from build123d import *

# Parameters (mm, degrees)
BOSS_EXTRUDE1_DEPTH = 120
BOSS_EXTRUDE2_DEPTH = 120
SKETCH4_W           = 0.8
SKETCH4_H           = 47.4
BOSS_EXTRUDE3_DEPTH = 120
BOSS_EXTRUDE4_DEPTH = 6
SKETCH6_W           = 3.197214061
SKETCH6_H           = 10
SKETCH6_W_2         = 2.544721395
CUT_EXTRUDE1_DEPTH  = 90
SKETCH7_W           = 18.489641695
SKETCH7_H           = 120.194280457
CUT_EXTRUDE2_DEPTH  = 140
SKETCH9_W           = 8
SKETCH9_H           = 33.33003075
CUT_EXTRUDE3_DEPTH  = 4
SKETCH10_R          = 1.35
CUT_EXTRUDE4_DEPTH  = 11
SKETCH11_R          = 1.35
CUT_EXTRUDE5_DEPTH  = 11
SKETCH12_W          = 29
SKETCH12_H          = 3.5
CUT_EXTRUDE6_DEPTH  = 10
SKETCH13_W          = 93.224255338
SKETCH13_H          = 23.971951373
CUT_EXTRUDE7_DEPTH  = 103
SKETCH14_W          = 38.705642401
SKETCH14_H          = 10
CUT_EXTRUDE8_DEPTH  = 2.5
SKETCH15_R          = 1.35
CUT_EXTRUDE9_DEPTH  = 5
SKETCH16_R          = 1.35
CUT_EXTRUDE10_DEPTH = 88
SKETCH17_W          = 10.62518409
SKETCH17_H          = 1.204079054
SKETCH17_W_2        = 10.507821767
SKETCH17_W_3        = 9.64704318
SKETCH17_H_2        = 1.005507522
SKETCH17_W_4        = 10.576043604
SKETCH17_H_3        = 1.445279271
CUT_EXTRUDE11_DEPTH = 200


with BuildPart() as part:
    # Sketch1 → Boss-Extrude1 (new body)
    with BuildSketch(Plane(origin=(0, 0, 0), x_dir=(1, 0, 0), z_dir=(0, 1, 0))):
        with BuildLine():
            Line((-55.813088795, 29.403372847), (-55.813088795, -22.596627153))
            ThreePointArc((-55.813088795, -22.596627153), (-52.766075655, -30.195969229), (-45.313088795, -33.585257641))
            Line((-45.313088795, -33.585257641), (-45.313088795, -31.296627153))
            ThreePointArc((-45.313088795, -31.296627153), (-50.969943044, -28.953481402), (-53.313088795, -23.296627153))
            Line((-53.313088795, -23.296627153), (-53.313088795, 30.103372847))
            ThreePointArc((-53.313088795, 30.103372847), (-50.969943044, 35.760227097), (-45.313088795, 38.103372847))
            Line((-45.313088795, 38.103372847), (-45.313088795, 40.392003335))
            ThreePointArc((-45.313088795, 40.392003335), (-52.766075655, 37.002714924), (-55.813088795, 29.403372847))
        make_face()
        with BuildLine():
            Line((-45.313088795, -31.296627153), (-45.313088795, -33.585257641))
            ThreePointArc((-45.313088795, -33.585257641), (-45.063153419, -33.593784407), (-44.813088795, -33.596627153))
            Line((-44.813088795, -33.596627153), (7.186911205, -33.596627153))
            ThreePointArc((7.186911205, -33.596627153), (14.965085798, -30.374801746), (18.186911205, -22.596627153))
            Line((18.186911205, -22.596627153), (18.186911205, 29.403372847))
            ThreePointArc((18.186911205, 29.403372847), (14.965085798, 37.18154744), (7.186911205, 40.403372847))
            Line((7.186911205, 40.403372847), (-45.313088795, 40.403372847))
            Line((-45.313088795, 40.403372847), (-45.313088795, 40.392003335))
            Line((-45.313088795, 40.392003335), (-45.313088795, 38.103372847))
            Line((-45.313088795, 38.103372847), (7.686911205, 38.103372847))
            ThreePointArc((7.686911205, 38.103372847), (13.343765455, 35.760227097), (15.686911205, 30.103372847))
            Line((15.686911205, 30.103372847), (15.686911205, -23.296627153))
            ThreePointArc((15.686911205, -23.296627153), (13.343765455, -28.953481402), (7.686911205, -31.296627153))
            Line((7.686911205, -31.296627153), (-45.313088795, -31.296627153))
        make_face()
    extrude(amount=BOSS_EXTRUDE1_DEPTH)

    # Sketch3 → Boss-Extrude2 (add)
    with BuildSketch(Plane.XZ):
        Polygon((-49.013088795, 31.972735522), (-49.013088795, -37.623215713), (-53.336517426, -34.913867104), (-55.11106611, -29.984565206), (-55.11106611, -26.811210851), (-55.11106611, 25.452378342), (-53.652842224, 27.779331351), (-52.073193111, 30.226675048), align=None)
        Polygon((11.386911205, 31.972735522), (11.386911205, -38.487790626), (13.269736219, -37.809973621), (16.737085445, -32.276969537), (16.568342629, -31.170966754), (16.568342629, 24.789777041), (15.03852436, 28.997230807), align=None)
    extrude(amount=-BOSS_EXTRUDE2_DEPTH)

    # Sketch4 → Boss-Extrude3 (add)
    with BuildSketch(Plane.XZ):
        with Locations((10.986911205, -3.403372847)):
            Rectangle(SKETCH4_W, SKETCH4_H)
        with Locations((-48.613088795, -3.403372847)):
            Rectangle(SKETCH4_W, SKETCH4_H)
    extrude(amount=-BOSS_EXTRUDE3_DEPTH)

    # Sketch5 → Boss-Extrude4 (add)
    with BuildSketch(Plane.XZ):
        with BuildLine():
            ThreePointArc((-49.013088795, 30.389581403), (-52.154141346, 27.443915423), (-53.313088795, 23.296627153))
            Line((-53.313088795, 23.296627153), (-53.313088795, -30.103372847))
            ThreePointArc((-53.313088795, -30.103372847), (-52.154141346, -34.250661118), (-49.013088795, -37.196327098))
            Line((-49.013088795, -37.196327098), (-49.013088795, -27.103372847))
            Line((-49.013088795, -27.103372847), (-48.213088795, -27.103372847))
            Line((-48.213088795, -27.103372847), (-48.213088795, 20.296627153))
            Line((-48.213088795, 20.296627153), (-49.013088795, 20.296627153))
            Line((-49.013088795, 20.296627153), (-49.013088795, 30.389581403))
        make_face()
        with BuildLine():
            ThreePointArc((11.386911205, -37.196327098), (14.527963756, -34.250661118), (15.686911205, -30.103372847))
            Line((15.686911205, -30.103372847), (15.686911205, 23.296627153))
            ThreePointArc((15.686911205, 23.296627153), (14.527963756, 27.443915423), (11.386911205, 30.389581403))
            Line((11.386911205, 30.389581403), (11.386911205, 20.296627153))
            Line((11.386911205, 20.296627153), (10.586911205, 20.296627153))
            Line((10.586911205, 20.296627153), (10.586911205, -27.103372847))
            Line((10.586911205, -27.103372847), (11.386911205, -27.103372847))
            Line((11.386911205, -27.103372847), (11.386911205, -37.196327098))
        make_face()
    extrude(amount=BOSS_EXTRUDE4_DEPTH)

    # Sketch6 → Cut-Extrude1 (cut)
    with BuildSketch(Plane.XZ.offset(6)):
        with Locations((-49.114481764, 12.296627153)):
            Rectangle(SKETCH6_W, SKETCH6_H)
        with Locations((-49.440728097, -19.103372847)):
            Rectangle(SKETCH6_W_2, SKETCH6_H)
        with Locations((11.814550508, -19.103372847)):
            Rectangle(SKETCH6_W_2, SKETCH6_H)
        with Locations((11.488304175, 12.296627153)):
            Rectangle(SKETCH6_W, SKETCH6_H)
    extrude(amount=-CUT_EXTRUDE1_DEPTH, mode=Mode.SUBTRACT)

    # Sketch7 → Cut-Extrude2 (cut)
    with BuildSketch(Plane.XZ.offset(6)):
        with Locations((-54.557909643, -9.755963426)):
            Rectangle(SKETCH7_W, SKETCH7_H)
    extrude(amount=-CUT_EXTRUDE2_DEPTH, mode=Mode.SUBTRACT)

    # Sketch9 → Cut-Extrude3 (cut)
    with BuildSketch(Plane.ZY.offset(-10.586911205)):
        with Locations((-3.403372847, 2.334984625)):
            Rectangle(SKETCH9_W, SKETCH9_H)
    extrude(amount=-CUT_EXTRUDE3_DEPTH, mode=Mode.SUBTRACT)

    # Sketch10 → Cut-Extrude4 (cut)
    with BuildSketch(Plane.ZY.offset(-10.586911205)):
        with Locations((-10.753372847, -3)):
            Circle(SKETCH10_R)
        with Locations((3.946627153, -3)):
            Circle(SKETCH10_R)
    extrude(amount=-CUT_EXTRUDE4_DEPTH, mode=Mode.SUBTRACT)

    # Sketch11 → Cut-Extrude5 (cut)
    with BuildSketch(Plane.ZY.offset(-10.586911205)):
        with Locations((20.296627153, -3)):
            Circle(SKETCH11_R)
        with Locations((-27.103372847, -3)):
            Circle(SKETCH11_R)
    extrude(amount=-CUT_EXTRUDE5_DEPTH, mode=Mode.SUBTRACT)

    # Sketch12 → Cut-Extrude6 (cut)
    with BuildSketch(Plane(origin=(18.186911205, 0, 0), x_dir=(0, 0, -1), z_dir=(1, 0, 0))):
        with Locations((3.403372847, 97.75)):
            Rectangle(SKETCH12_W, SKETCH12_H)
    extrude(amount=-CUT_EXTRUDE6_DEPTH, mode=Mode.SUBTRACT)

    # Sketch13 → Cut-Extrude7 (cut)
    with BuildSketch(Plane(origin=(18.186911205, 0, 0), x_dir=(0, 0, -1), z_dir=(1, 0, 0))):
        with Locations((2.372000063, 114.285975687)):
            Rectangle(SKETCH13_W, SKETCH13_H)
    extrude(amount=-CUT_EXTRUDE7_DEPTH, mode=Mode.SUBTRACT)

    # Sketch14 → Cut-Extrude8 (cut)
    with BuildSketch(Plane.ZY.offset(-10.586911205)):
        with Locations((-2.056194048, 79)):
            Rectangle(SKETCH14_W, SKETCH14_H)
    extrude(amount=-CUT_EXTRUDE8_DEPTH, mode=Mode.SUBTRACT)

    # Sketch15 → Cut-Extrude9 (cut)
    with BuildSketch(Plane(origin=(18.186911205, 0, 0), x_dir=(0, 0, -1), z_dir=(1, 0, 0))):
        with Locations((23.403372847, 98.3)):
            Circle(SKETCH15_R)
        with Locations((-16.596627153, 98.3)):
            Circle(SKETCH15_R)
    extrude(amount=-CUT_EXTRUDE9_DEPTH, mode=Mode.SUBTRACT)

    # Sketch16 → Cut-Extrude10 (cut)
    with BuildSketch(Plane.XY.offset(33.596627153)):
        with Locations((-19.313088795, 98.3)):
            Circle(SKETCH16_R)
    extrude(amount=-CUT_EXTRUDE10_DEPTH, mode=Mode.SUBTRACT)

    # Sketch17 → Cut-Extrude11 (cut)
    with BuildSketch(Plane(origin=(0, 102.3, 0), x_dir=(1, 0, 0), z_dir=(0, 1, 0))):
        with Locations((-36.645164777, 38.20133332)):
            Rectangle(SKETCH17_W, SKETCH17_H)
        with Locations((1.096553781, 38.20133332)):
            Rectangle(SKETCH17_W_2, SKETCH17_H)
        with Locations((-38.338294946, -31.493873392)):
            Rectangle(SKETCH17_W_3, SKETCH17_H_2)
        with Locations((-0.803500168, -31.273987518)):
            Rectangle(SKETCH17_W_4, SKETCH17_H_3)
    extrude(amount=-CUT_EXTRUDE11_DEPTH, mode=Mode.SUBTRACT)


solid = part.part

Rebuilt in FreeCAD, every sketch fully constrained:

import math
import FreeCAD as App
import Part
import Sketcher

V = App.Vector


def add_polygon(sketch, points):
    """Adds a closed chain of lines whose ends are joined by coincident constraints."""
    first, n = sketch.GeometryCount, len(points)
    for a, b in zip(points, points[1:] + points[:1]):
        sketch.addGeometry(Part.LineSegment(App.Vector(*a, 0), App.Vector(*b, 0)), False)
    for i in range(n):
        sketch.addConstraint(Sketcher.Constraint("Coincident", first + i, 2, first + (i + 1) % n, 1))

doc = App.newDocument("Part")
body = doc.addObject("PartDesign::Body", "Body")

# Sketch on XZ plane
sketch1 = doc.addObject("Sketcher::SketchObject", "Sketch")
body.addObject(sketch1)
sketch1.AttachmentSupport = (doc.XZ_Plane, [""])
sketch1.MapMode = "FlatFace"
sketch1.addGeometry([
    Part.LineSegment(V(-55.813089, -29.403373, 0), V(-55.813089, 22.596627, 0)),  # 0
    Part.ArcOfCircle(Part.Circle(V(-44.813089, 22.596627, 0), V(0, 0, 1), 11), math.radians(92.605251), math.radians(180)),  # 1
    Part.ArcOfCircle(Part.Circle(V(-44.813089, 22.596624, 0), V(0, 0, 1), 11.000003), math.radians(90), math.radians(92.605251)),  # 2
    Part.LineSegment(V(-44.813089, 33.596627, 0), V(7.186911, 33.596627, 0)),  # 3
    Part.ArcOfCircle(Part.Circle(V(7.186911, 22.596627, 0), V(0, 0, 1), 11), math.radians(0), math.radians(90)),  # 4
    Part.LineSegment(V(18.186911, 22.596627, 0), V(18.186911, -29.403373, 0)),  # 5
    Part.ArcOfCircle(Part.Circle(V(7.186911, -29.403373, 0), V(0, 0, 1), 11), math.radians(-90), math.radians(0)),  # 6
    Part.LineSegment(V(7.186911, -40.403373, 0), V(-45.313089, -40.403373, 0)),  # 7
    Part.LineSegment(V(-45.313089, -40.403373, 0), V(-45.313089, -40.392003, 0)),  # 8
    Part.ArcOfCircle(Part.Circle(V(-44.813089, -29.403373, 0), V(0, 0, 1), 11), math.radians(180), math.radians(267.394749)),  # 9
    Part.ArcOfCircle(Part.Circle(V(-45.313089, 23.296627, 0), V(0, 0, 1), 8), math.radians(90), math.radians(180)),  # 10
    Part.LineSegment(V(-53.313089, 23.296627, 0), V(-53.313089, -30.103373, 0)),  # 11
    Part.ArcOfCircle(Part.Circle(V(-45.313089, -30.103373, 0), V(0, 0, 1), 8), math.radians(180), math.radians(270)),  # 12
    Part.LineSegment(V(-45.313089, -38.103373, 0), V(7.686911, -38.103373, 0)),  # 13
    Part.ArcOfCircle(Part.Circle(V(7.686911, -30.103373, 0), V(0, 0, 1), 8), math.radians(-90), math.radians(0)),  # 14
    Part.LineSegment(V(15.686911, -30.103373, 0), V(15.686911, 23.296627, 0)),  # 15
    Part.ArcOfCircle(Part.Circle(V(7.686911, 23.296627, 0), V(0, 0, 1), 8), math.radians(0), math.radians(90)),  # 16
    Part.LineSegment(V(7.686911, 31.296627, 0), V(-45.313089, 31.296627, 0)),  # 17
], False)
sketch1.addConstraint([
    Sketcher.Constraint("Tangent", 0, 2, 1, 2),
    Sketcher.Constraint("Tangent", 1, 1, 2, 2),
    Sketcher.Constraint("Tangent", 2, 1, 3, 1),
    Sketcher.Constraint("Tangent", 3, 2, 4, 2),
    Sketcher.Constraint("Tangent", 4, 1, 5, 1),
    Sketcher.Constraint("Tangent", 5, 2, 6, 2),
    Sketcher.Constraint("Tangent", 6, 1, 7, 1),
    Sketcher.Constraint("Coincident", 7, 2, 8, 1),
    Sketcher.Constraint("Coincident", 8, 2, 9, 2),
    Sketcher.Constraint("Tangent", 9, 1, 0, 1),
    Sketcher.Constraint("Tangent", 10, 2, 11, 1),
    Sketcher.Constraint("Tangent", 11, 2, 12, 1),
    Sketcher.Constraint("Tangent", 12, 2, 13, 1),
    Sketcher.Constraint("Tangent", 13, 2, 14, 1),
    Sketcher.Constraint("Tangent", 14, 2, 15, 1),
    Sketcher.Constraint("Tangent", 15, 2, 16, 1),
    Sketcher.Constraint("Tangent", 16, 2, 17, 1),
    Sketcher.Constraint("Tangent", 17, 2, 10, 1),
    Sketcher.Constraint("Vertical", 0),
    Sketcher.Constraint("Horizontal", 3),
    Sketcher.Constraint("Vertical", 5),
    Sketcher.Constraint("Horizontal", 7),
    Sketcher.Constraint("Vertical", 8),
    Sketcher.Constraint("Vertical", 11),
    Sketcher.Constraint("Horizontal", 13),
    Sketcher.Constraint("Vertical", 15),
    Sketcher.Constraint("Horizontal", 17),
    Sketcher.Constraint("Equal", 1, 4),
    Sketcher.Constraint("Equal", 4, 6),
    Sketcher.Constraint("Equal", 6, 9),
    Sketcher.Constraint("Equal", 10, 12),
    Sketcher.Constraint("Equal", 12, 14),
    Sketcher.Constraint("Equal", 14, 16),
    Sketcher.Constraint("Horizontal", 6, 3, 9, 3),
    Sketcher.Constraint("Vertical", 2, 3, 9, 3),
    Sketcher.Constraint("Vertical", 12, 3, 1, 1),
    Sketcher.Constraint("Vertical", 1, 1, 7, 2),
    Sketcher.Constraint("Equal", 3, 0),
    Sketcher.Constraint("Radius", 1, 11.0),
    Sketcher.Constraint("Radius", 10, 8.0),
    Sketcher.Constraint("DistanceX", 3, 1, 3, 2, 52.0),
    Sketcher.Constraint("DistanceX", 13, 1, 13, 2, 53.0),
    Sketcher.Constraint("DistanceX", 7, 2, 7, 1, 52.5),
    Sketcher.Constraint("DistanceY", 11, 2, 11, 1, 53.4),
    Sketcher.Constraint("DistanceY", 1, 3, 10, 3, 0.7),
    Sketcher.Constraint("DistanceX", 1, 3, -1, 1, 44.813089),
    Sketcher.Constraint("DistanceY", -1, 1, 1, 3, 22.596627),
])
pad1 = doc.addObject("PartDesign::Pad", "Pad")
body.addObject(pad1)
pad1.Profile = sketch1
pad1.Length = 120
pad1.Reversed = True

# Sketch on XZ plane
sketch2 = doc.addObject("Sketcher::SketchObject", "Sketch001")
body.addObject(sketch2)
sketch2.AttachmentSupport = (doc.XZ_Plane, [""])
sketch2.MapMode = "FlatFace"
add_polygon(sketch2, [(-49.013089, -37.623216), (-49.013089, 31.972736), (-52.073193, 30.226675), (-53.652842, 27.779331), (-55.111066, 25.452378), (-55.111066, -29.984565), (-53.336517, -34.913867)])  # lines 0-6
add_polygon(sketch2, [(11.386911, 31.972736), (11.386911, -38.487791), (13.269736, -37.809974), (16.737085, -32.27697), (16.568343, -31.170967), (16.568343, 24.789777), (15.038524, 28.997231)])  # lines 7-13
sketch2.addConstraint([
    Sketcher.Constraint("Vertical", 0),
    Sketcher.Constraint("Vertical", 4),
    Sketcher.Constraint("Vertical", 7),
    Sketcher.Constraint("Vertical", 11),
    Sketcher.Constraint("Perpendicular", 3, 6),
    Sketcher.Constraint("Perpendicular", 5, 8),
    Sketcher.Constraint("Perpendicular", 6, 9),
    Sketcher.Constraint("Horizontal", 0, 2, 13, 2),
    Sketcher.Constraint("DistanceX", 6, 2, 7, 2, 60.4),
    Sketcher.Constraint("Distance", 10, 1.118801),
    Sketcher.Constraint("DistanceY", 0, 1, 0, 2, 69.595951),
    Sketcher.Constraint("DistanceY", 4, 2, 0, 2, 61.957301),
    Sketcher.Constraint("DistanceY", 5, 2, 4, 2, 4.929302),
    Sketcher.Constraint("DistanceY", 5, 2, 2, 2, 62.693198),
    Sketcher.Constraint("DistanceY", 5, 2, 10, 2, 3.7429),
    Sketcher.Constraint("DistanceY", 9, 2, 12, 2, 61.2742),
    Sketcher.Constraint("Distance", 3, 2.746111),
    Sketcher.Constraint("DistanceY", 4, 2, 4, 1, 55.436944),
    Sketcher.Constraint("DistanceY", 7, 2, 7, 1, 70.460526),
    Sketcher.Constraint("DistanceY", 11, 1, 11, 2, 55.960744),
    Sketcher.Constraint("DistanceX", 0, 2, -1, 1, 49.013089),
    Sketcher.Constraint("DistanceY", -1, 1, 2, 2, 27.779331),
    Sketcher.Constraint("DistanceY", 9, 2, -1, 1, 32.27697),
    Sketcher.Constraint("DistanceY", 1, 2, 0, 2, 1.74606),
    Sketcher.Constraint("DistanceX", 2, 2, 1, 2, 1.579649),
    Sketcher.Constraint("DistanceX", 4, 2, 5, 2, 1.774549),
    Sketcher.Constraint("DistanceY", 8, 2, 4, 2, 7.825408),
    Sketcher.Constraint("DistanceX", 12, 2, 11, 2, 1.529818),
])
pad2 = doc.addObject("PartDesign::Pad", "Pad001")
body.addObject(pad2)
pad2.Profile = sketch2
pad2.Length = 120
pad2.Reversed = True

# Sketch on XZ plane
sketch3 = doc.addObject("Sketcher::SketchObject", "Sketch002")
body.addObject(sketch3)
sketch3.AttachmentSupport = (doc.XZ_Plane, [""])
sketch3.MapMode = "FlatFace"
add_polygon(sketch3, [(10.586911, 20.296627), (10.586911, -27.103373), (11.386911, -27.103373), (11.386911, 20.296627)])  # lines 0-3
add_polygon(sketch3, [(-49.013089, 20.296627), (-49.013089, -27.103373), (-48.213089, -27.103373), (-48.213089, 20.296627)])  # lines 4-7
sketch3.addConstraint([
    Sketcher.Constraint("Vertical", 0),
    Sketcher.Constraint("Horizontal", 1),
    Sketcher.Constraint("Vertical", 2),
    Sketcher.Constraint("Horizontal", 3),
    Sketcher.Constraint("Vertical", 4),
    Sketcher.Constraint("Horizontal", 5),
    Sketcher.Constraint("Vertical", 6),
    Sketcher.Constraint("Horizontal", 7),
    Sketcher.Constraint("Horizontal", 1, 2, 4, 2),
    Sketcher.Constraint("Horizontal", 3, 2, 6, 2),
    Sketcher.Constraint("Equal", 3, 5),
    Sketcher.Constraint("DistanceX", 1, 1, 1, 2, 0.8),
    Sketcher.Constraint("DistanceY", 0, 2, 0, 1, 47.4),
    Sketcher.Constraint("DistanceX", 4, 2, 0, 2, 59.6),
    Sketcher.Constraint("DistanceX", -1, 1, 0, 2, 10.586911),
    Sketcher.Constraint("DistanceY", 0, 2, -1, 1, 27.103373),
])
pad3 = doc.addObject("PartDesign::Pad", "Pad002")
body.addObject(pad3)
pad3.Profile = sketch3
pad3.Length = 120
pad3.Reversed = True

# Sketch on XZ plane
sketch4 = doc.addObject("Sketcher::SketchObject", "Sketch003")
body.addObject(sketch4)
sketch4.AttachmentSupport = (doc.XZ_Plane, [""])
sketch4.MapMode = "FlatFace"
sketch4.addGeometry([
    Part.ArcOfCircle(Part.Circle(V(-45.313089, 23.296627, 0), V(0, 0, 1), 8), math.radians(117.548546), math.radians(180)),  # 0
    Part.LineSegment(V(-53.313089, 23.296627, 0), V(-53.313089, -30.103373, 0)),  # 1
    Part.ArcOfCircle(Part.Circle(V(-45.313089, -30.103373, 0), V(0, 0, 1), 8), math.radians(180), math.radians(242.451454)),  # 2
    Part.LineSegment(V(-49.013089, -37.196327, 0), V(-49.013089, -27.103373, 0)),  # 3
    Part.LineSegment(V(-49.013089, -27.103373, 0), V(-48.213089, -27.103373, 0)),  # 4
    Part.LineSegment(V(-48.213089, -27.103373, 0), V(-48.213089, 20.296627, 0)),  # 5
    Part.LineSegment(V(-48.213089, 20.296627, 0), V(-49.013089, 20.296627, 0)),  # 6
    Part.LineSegment(V(-49.013089, 20.296627, 0), V(-49.013089, 30.389581, 0)),  # 7
    Part.ArcOfCircle(Part.Circle(V(7.686911, -30.103373, 0), V(0, 0, 1), 8), math.radians(-62.451454), math.radians(0)),  # 8
    Part.LineSegment(V(15.686911, -30.103373, 0), V(15.686911, 23.296627, 0)),  # 9
    Part.ArcOfCircle(Part.Circle(V(7.686911, 23.296627, 0), V(0, 0, 1), 8), math.radians(0), math.radians(62.451454)),  # 10
    Part.LineSegment(V(11.386911, 30.389581, 0), V(11.386911, 20.296627, 0)),  # 11
    Part.LineSegment(V(11.386911, 20.296627, 0), V(10.586911, 20.296627, 0)),  # 12
    Part.LineSegment(V(10.586911, 20.296627, 0), V(10.586911, -27.103373, 0)),  # 13
    Part.LineSegment(V(10.586911, -27.103373, 0), V(11.386911, -27.103373, 0)),  # 14
    Part.LineSegment(V(11.386911, -27.103373, 0), V(11.386911, -37.196327, 0)),  # 15
], False)
sketch4.addConstraint([
    Sketcher.Constraint("Tangent", 0, 2, 1, 1),
    Sketcher.Constraint("Tangent", 1, 2, 2, 1),
    Sketcher.Constraint("Coincident", 2, 2, 3, 1),
    Sketcher.Constraint("Coincident", 3, 2, 4, 1),
    Sketcher.Constraint("Coincident", 4, 2, 5, 1),
    Sketcher.Constraint("Coincident", 5, 2, 6, 1),
    Sketcher.Constraint("Coincident", 6, 2, 7, 1),
    Sketcher.Constraint("Coincident", 7, 2, 0, 1),
    Sketcher.Constraint("Tangent", 8, 2, 9, 1),
    Sketcher.Constraint("Tangent", 9, 2, 10, 1),
    Sketcher.Constraint("Coincident", 10, 2, 11, 1),
    Sketcher.Constraint("Coincident", 11, 2, 12, 1),
    Sketcher.Constraint("Coincident", 12, 2, 13, 1),
    Sketcher.Constraint("Coincident", 13, 2, 14, 1),
    Sketcher.Constraint("Coincident", 14, 2, 15, 1),
    Sketcher.Constraint("Coincident", 15, 2, 8, 1),
    Sketcher.Constraint("Vertical", 1),
    Sketcher.Constraint("Vertical", 3),
    Sketcher.Constraint("Horizontal", 4),
    Sketcher.Constraint("Vertical", 5),
    Sketcher.Constraint("Horizontal", 6),
    Sketcher.Constraint("Vertical", 7),
    Sketcher.Constraint("Vertical", 9),
    Sketcher.Constraint("Vertical", 11),
    Sketcher.Constraint("Horizontal", 12),
    Sketcher.Constraint("Vertical", 13),
    Sketcher.Constraint("Horizontal", 14),
    Sketcher.Constraint("Vertical", 15),
    Sketcher.Constraint("Equal", 0, 2),
    Sketcher.Constraint("Equal", 2, 8),
    Sketcher.Constraint("Equal", 8, 10),
    Sketcher.Constraint("Horizontal", 2, 3, 8, 3),
    Sketcher.Constraint("Horizontal", 0, 3, 10, 3),
    Sketcher.Constraint("Horizontal", 7, 2, 10, 2),
    Sketcher.Constraint("Horizontal", 6, 2, 11, 2),
    Sketcher.Constraint("Horizontal", 4, 2, 13, 2),
    Sketcher.Constraint("Horizontal", 2, 2, 15, 2),
    Sketcher.Constraint("Vertical", 3, 2, 6, 2),
    Sketcher.Constraint("Equal", 6, 12),
    Sketcher.Constraint("Equal", 3, 7),
    Sketcher.Constraint("Radius", 0, 8.0),
    Sketcher.Constraint("DistanceX", 4, 1, 4, 2, 0.8),
    Sketcher.Constraint("DistanceY", 1, 2, 1, 1, 53.4),
    Sketcher.Constraint("DistanceY", 5, 1, 5, 2, 47.4),
    Sketcher.Constraint("DistanceX", 2, 3, 8, 3, 53.0),
    Sketcher.Constraint("DistanceX", 2, 2, 2, 3, 3.7),
    Sketcher.Constraint("DistanceX", 0, 3, -1, 1, 45.313089),
    Sketcher.Constraint("DistanceY", -1, 1, 7, 2, 30.389581),
])
pad4 = doc.addObject("PartDesign::Pad", "Pad003")
body.addObject(pad4)
pad4.Profile = sketch4
pad4.Length = 6

# Sketch on XZ plane
sketch5 = doc.addObject("Sketcher::SketchObject", "Sketch004")
body.addObject(sketch5)
sketch5.AttachmentSupport = (doc.XZ_Plane, [""])
sketch5.MapMode = "FlatFace"
sketch5.AttachmentOffset = App.Placement(V(0, 0, 6), App.Rotation())
add_polygon(sketch5, [(-50.713089, 17.296627), (-50.713089, 7.296627), (-47.515875, 7.296627), (-47.515875, 17.296627)])  # lines 0-3
add_polygon(sketch5, [(-50.713089, -14.103373), (-50.713089, -24.103373), (-48.168367, -24.103373), (-48.168367, -14.103373)])  # lines 4-7
add_polygon(sketch5, [(10.54219, -14.103373), (10.54219, -24.103373), (13.086911, -24.103373), (13.086911, -14.103373)])  # lines 8-11
add_polygon(sketch5, [(9.889697, 17.296627), (9.889697, 7.296627), (13.086911, 7.296627), (13.086911, 17.296627)])  # lines 12-15
sketch5.addConstraint([
    Sketcher.Constraint("Vertical", 0),
    Sketcher.Constraint("Horizontal", 1),
    Sketcher.Constraint("Vertical", 2),
    Sketcher.Constraint("Horizontal", 3),
    Sketcher.Constraint("Vertical", 4),
    Sketcher.Constraint("Horizontal", 5),
    Sketcher.Constraint("Vertical", 6),
    Sketcher.Constraint("Horizontal", 7),
    Sketcher.Constraint("Vertical", 8),
    Sketcher.Constraint("Horizontal", 9),
    Sketcher.Constraint("Vertical", 10),
    Sketcher.Constraint("Horizontal", 11),
    Sketcher.Constraint("Vertical", 12),
    Sketcher.Constraint("Horizontal", 13),
    Sketcher.Constraint("Vertical", 14),
    Sketcher.Constraint("Horizontal", 15),
    Sketcher.Constraint("Horizontal", 5, 2, 8, 2),
    Sketcher.Constraint("Horizontal", 7, 2, 10, 2),
    Sketcher.Constraint("Horizontal", 1, 2, 12, 2),
    Sketcher.Constraint("Horizontal", 3, 2, 14, 2),
    Sketcher.Constraint("Vertical", 3, 2, 4, 2),
    Sketcher.Constraint("Vertical", 10, 2, 13, 2),
    Sketcher.Constraint("Equal", 7, 9),
    Sketcher.Constraint("Equal", 3, 13),
    Sketcher.Constraint("Equal", 2, 4),
    Sketcher.Constraint("DistanceY", 0, 2, 0, 1, 10.0),
    Sketcher.Constraint("DistanceY", 4, 2, 0, 2, 31.4),
    Sketcher.Constraint("DistanceX", 4, 2, 9, 2, 63.8),
    Sketcher.Constraint("DistanceX", 5, 1, 5, 2, 2.544721),
    Sketcher.Constraint("DistanceX", 1, 1, 1, 2, 3.197214),
    Sketcher.Constraint("DistanceX", 0, 2, -1, 1, 50.713089),
    Sketcher.Constraint("DistanceY", -1, 1, 0, 2, 7.296627),
])
pocket1 = doc.addObject("PartDesign::Pocket", "Pocket")
body.addObject(pocket1)
pocket1.Profile = sketch5
pocket1.Length = 90

# Sketch on XZ plane
sketch6 = doc.addObject("Sketcher::SketchObject", "Sketch005")
body.addObject(sketch6)
sketch6.AttachmentSupport = (doc.XZ_Plane, [""])
sketch6.MapMode = "FlatFace"
sketch6.AttachmentOffset = App.Placement(V(0, 0, 6), App.Rotation())
add_polygon(sketch6, [(-63.80273, 50.341177), (-63.80273, -69.853104), (-45.313089, -69.853104), (-45.313089, 50.341177)])  # lines 0-3
sketch6.addConstraint([
    Sketcher.Constraint("Vertical", 0),
    Sketcher.Constraint("Horizontal", 1),
    Sketcher.Constraint("Vertical", 2),
    Sketcher.Constraint("Horizontal", 3),
    Sketcher.Constraint("DistanceX", 1, 1, 1, 2, 18.489642),
    Sketcher.Constraint("DistanceY", 0, 2, 0, 1, 120.19428),
    Sketcher.Constraint("DistanceX", 0, 2, -1, 1, 63.80273),
    Sketcher.Constraint("DistanceY", 0, 2, -1, 1, 69.853104),
])
pocket2 = doc.addObject("PartDesign::Pocket", "Pocket001")
body.addObject(pocket2)
pocket2.Profile = sketch6
pocket2.Length = 140

# Sketch on YZ plane
sketch7 = doc.addObject("Sketcher::SketchObject", "Sketch006")
body.addObject(sketch7)
sketch7.AttachmentSupport = (doc.YZ_Plane, [""])
sketch7.MapMode = "FlatFace"
sketch7.AttachmentOffset = App.Placement(V(0, 0, 10.586911), App.Rotation())
add_polygon(sketch7, [(19, -7.403373), (-14.330031, -7.403373), (-14.330031, 0.596627), (19, 0.596627)])  # lines 0-3
sketch7.addConstraint([
    Sketcher.Constraint("Horizontal", 0),
    Sketcher.Constraint("Vertical", 1),
    Sketcher.Constraint("Horizontal", 2),
    Sketcher.Constraint("Vertical", 3),
    Sketcher.Constraint("DistanceY", 1, 1, 1, 2, 8.0),
    Sketcher.Constraint("DistanceX", -1, 1, 2, 2, 19.0),
    Sketcher.Constraint("DistanceX", 0, 2, 0, 1, 33.330031),
    Sketcher.Constraint("DistanceY", 0, 2, -1, 1, 7.403373),
])
pocket3 = doc.addObject("PartDesign::Pocket", "Pocket002")
body.addObject(pocket3)
pocket3.Profile = sketch7
pocket3.Length = 4
pocket3.Reversed = True

# Sketch on YZ plane
sketch8 = doc.addObject("Sketcher::SketchObject", "Sketch007")
body.addObject(sketch8)
sketch8.AttachmentSupport = (doc.YZ_Plane, [""])
sketch8.MapMode = "FlatFace"
sketch8.AttachmentOffset = App.Placement(V(0, 0, 10.586911), App.Rotation())
sketch8.addGeometry([
    Part.Circle(V(-3, -10.753373, 0), V(0, 0, 1), 1.35),
    Part.Circle(V(-3, 3.946627, 0), V(0, 0, 1), 1.35),
], False)
sketch8.addConstraint([
    Sketcher.Constraint("Equal", 0, 1),
    Sketcher.Constraint("Vertical", 0, 3, 1, 3),
    Sketcher.Constraint("Diameter", 0, 2.7),
    Sketcher.Constraint("DistanceX", 0, 3, -1, 1, 3.0),
    Sketcher.Constraint("DistanceY", 0, 3, 1, 3, 14.7),
    Sketcher.Constraint("DistanceY", 0, 3, -1, 1, 10.753373),
])
pocket4 = doc.addObject("PartDesign::Pocket", "Pocket003")
body.addObject(pocket4)
pocket4.Profile = sketch8
pocket4.Length = 11
pocket4.Reversed = True

# Sketch on YZ plane
sketch9 = doc.addObject("Sketcher::SketchObject", "Sketch008")
body.addObject(sketch9)
sketch9.AttachmentSupport = (doc.YZ_Plane, [""])
sketch9.MapMode = "FlatFace"
sketch9.AttachmentOffset = App.Placement(V(0, 0, 10.586911), App.Rotation())
sketch9.addGeometry([
    Part.Circle(V(-3, 20.296627, 0), V(0, 0, 1), 1.35),
    Part.Circle(V(-3, -27.103373, 0), V(0, 0, 1), 1.35),
], False)
sketch9.addConstraint([
    Sketcher.Constraint("Equal", 0, 1),
    Sketcher.Constraint("Vertical", 0, 3, 1, 3),
    Sketcher.Constraint("Diameter", 0, 2.7),
    Sketcher.Constraint("DistanceX", 0, 3, -1, 1, 3.0),
    Sketcher.Constraint("DistanceY", 1, 3, 0, 3, 47.4),
    Sketcher.Constraint("DistanceY", -1, 1, 0, 3, 20.296627),
])
pocket5 = doc.addObject("PartDesign::Pocket", "Pocket004")
body.addObject(pocket5)
pocket5.Profile = sketch9
pocket5.Length = 11
pocket5.Reversed = True

# Sketch on YZ plane
sketch10 = doc.addObject("Sketcher::SketchObject", "Sketch009")
body.addObject(sketch10)
sketch10.AttachmentSupport = (doc.YZ_Plane, [""])
sketch10.MapMode = "FlatFace"
sketch10.AttachmentOffset = App.Placement(V(0, 0, 18.186911), App.Rotation())
add_polygon(sketch10, [(99.5, 11.096627), (96, 11.096627), (96, -17.903373), (99.5, -17.903373)])  # lines 0-3
sketch10.addConstraint([
    Sketcher.Constraint("Horizontal", 0),
    Sketcher.Constraint("Vertical", 1),
    Sketcher.Constraint("Horizontal", 2),
    Sketcher.Constraint("Vertical", 3),
    Sketcher.Constraint("DistanceY", 1, 2, 1, 1, 29.0),
    Sketcher.Constraint("DistanceX", 0, 2, 0, 1, 3.5),
    Sketcher.Constraint("DistanceX", -1, 1, 0, 2, 96.0),
    Sketcher.Constraint("DistanceY", -1, 1, 0, 2, 11.096627),
])
pocket6 = doc.addObject("PartDesign::Pocket", "Pocket005")
body.addObject(pocket6)
pocket6.Profile = sketch10
pocket6.Length = 10

# Sketch on YZ plane
sketch11 = doc.addObject("Sketcher::SketchObject", "Sketch010")
body.addObject(sketch11)
sketch11.AttachmentSupport = (doc.YZ_Plane, [""])
sketch11.MapMode = "FlatFace"
sketch11.AttachmentOffset = App.Placement(V(0, 0, 18.186911), App.Rotation())
add_polygon(sketch11, [(126.271951, 44.240128), (102.3, 44.240128), (102.3, -48.984128), (126.271951, -48.984128)])  # lines 0-3
sketch11.addConstraint([
    Sketcher.Constraint("Horizontal", 0),
    Sketcher.Constraint("Vertical", 1),
    Sketcher.Constraint("Horizontal", 2),
    Sketcher.Constraint("Vertical", 3),
    Sketcher.Constraint("DistanceX", -1, 1, 0, 2, 102.3),
    Sketcher.Constraint("DistanceX", 0, 2, 0, 1, 23.971951),
    Sketcher.Constraint("DistanceY", 1, 2, 1, 1, 93.224255),
    Sketcher.Constraint("DistanceY", -1, 1, 0, 2, 44.240128),
])
pocket7 = doc.addObject("PartDesign::Pocket", "Pocket006")
body.addObject(pocket7)
pocket7.Profile = sketch11
pocket7.Length = 103

# Sketch on YZ plane
sketch12 = doc.addObject("Sketcher::SketchObject", "Sketch011")
body.addObject(sketch12)
sketch12.AttachmentSupport = (doc.YZ_Plane, [""])
sketch12.MapMode = "FlatFace"
sketch12.AttachmentOffset = App.Placement(V(0, 0, 10.586911), App.Rotation())
add_polygon(sketch12, [(84, -21.409015), (74, -21.409015), (74, 17.296627), (84, 17.296627)])  # lines 0-3
sketch12.addConstraint([
    Sketcher.Constraint("Horizontal", 0),
    Sketcher.Constraint("Vertical", 1),
    Sketcher.Constraint("Horizontal", 2),
    Sketcher.Constraint("Vertical", 3),
    Sketcher.Constraint("DistanceX", 0, 2, 0, 1, 10.0),
    Sketcher.Constraint("DistanceX", -1, 1, 0, 2, 74.0),
    Sketcher.Constraint("DistanceY", 1, 1, 1, 2, 38.705642),
    Sketcher.Constraint("DistanceY", 0, 2, -1, 1, 21.409015),
])
pocket8 = doc.addObject("PartDesign::Pocket", "Pocket007")
body.addObject(pocket8)
pocket8.Profile = sketch12
pocket8.Length = 2.5
pocket8.Reversed = True

# Sketch on YZ plane
sketch13 = doc.addObject("Sketcher::SketchObject", "Sketch012")
body.addObject(sketch13)
sketch13.AttachmentSupport = (doc.YZ_Plane, [""])
sketch13.MapMode = "FlatFace"
sketch13.AttachmentOffset = App.Placement(V(0, 0, 18.186911), App.Rotation())
sketch13.addGeometry([
    Part.Circle(V(98.3, -23.403373, 0), V(0, 0, 1), 1.35),
    Part.Circle(V(98.3, 16.596627, 0), V(0, 0, 1), 1.35),
], False)
sketch13.addConstraint([
    Sketcher.Constraint("Equal", 0, 1),
    Sketcher.Constraint("Vertical", 0, 3, 1, 3),
    Sketcher.Constraint("Diameter", 0, 2.7),
    Sketcher.Constraint("DistanceY", 0, 3, 1, 3, 40.0),
    Sketcher.Constraint("DistanceX", -1, 1, 0, 3, 98.3),
    Sketcher.Constraint("DistanceY", 0, 3, -1, 1, 23.403373),
])
pocket9 = doc.addObject("PartDesign::Pocket", "Pocket008")
body.addObject(pocket9)
pocket9.Profile = sketch13
pocket9.Length = 5

# Sketch on XY plane
sketch14 = doc.addObject("Sketcher::SketchObject", "Sketch013")
body.addObject(sketch14)
sketch14.AttachmentSupport = (doc.XY_Plane, [""])
sketch14.MapMode = "FlatFace"
sketch14.AttachmentOffset = App.Placement(V(0, 0, 33.596627), App.Rotation())
sketch14.addGeometry(Part.Circle(V(-19.313089, 98.3, 0), V(0, 0, 1), 1.35), False)
sketch14.addConstraint([
    Sketcher.Constraint("Diameter", 0, 2.7),
    Sketcher.Constraint("DistanceY", -1, 1, 0, 3, 98.3),
    Sketcher.Constraint("DistanceX", 0, 3, -1, 1, 19.313089),
])
pocket10 = doc.addObject("PartDesign::Pocket", "Pocket009")
body.addObject(pocket10)
pocket10.Profile = sketch14
pocket10.Length = 88

# Sketch on XZ plane
sketch15 = doc.addObject("Sketcher::SketchObject", "Sketch014")
body.addObject(sketch15)
sketch15.AttachmentSupport = (doc.XZ_Plane, [""])
sketch15.MapMode = "FlatFace"
sketch15.AttachmentOffset = App.Placement(V(0, 0, -102.3), App.Rotation())
add_polygon(sketch15, [(-41.957757, -38.803373), (-41.957757, -37.599294), (-31.332573, -37.599294), (-31.332573, -38.803373)])  # lines 0-3
add_polygon(sketch15, [(-4.157357, -38.803373), (-4.157357, -37.599294), (6.350465, -37.599294), (6.350465, -38.803373)])  # lines 4-7
add_polygon(sketch15, [(-43.161817, 30.99112), (-43.161817, 31.996627), (-33.514773, 31.996627), (-33.514773, 30.99112)])  # lines 8-11
add_polygon(sketch15, [(-6.091522, 30.551348), (-6.091522, 31.996627), (4.484522, 31.996627), (4.484522, 30.551348)])  # lines 12-15
sketch15.addConstraint([
    Sketcher.Constraint("Vertical", 0),
    Sketcher.Constraint("Horizontal", 1),
    Sketcher.Constraint("Vertical", 2),
    Sketcher.Constraint("Horizontal", 3),
    Sketcher.Constraint("Vertical", 4),
    Sketcher.Constraint("Horizontal", 5),
    Sketcher.Constraint("Vertical", 6),
    Sketcher.Constraint("Horizontal", 7),
    Sketcher.Constraint("Vertical", 8),
    Sketcher.Constraint("Horizontal", 9),
    Sketcher.Constraint("Vertical", 10),
    Sketcher.Constraint("Horizontal", 11),
    Sketcher.Constraint("Vertical", 12),
    Sketcher.Constraint("Horizontal", 13),
    Sketcher.Constraint("Vertical", 14),
    Sketcher.Constraint("Horizontal", 15),
    Sketcher.Constraint("Horizontal", 1, 2, 4, 2),
    Sketcher.Constraint("Horizontal", 3, 2, 6, 2),
    Sketcher.Constraint("Horizontal", 9, 2, 12, 2),
    Sketcher.Constraint("DistanceY", 3, 2, 8, 2, 70.8),
    Sketcher.Constraint("DistanceX", 5, 1, 5, 2, 10.507822),
    Sketcher.Constraint("DistanceY", 0, 1, 0, 2, 1.204079),
    Sketcher.Constraint("DistanceY", 12, 1, 12, 2, 1.445279),
    Sketcher.Constraint("DistanceX", 0, 2, 4, 2, 37.8004),
    Sketcher.Constraint("DistanceX", 9, 2, 1, 2, 2.182201),
    Sketcher.Constraint("DistanceX", 1, 1, 1, 2, 10.625184),
    Sketcher.Constraint("DistanceX", 9, 1, 9, 2, 9.647043),
    Sketcher.Constraint("DistanceX", 13, 1, 13, 2, 10.576044),
    Sketcher.Constraint("DistanceY", 8, 1, 8, 2, 1.005508),
    Sketcher.Constraint("DistanceY", -1, 1, 10, 2, 30.99112),
    Sketcher.Constraint("DistanceX", 12, 2, -1, 1, 6.091522),
    Sketcher.Constraint("DistanceX", 9, 2, 12, 2, 27.423251),
])
pocket11 = doc.addObject("PartDesign::Pocket", "Pocket010")
body.addObject(pocket11)
pocket11.Profile = sketch15
pocket11.Length = 200
pocket11.Reversed = True

doc.recompute()
